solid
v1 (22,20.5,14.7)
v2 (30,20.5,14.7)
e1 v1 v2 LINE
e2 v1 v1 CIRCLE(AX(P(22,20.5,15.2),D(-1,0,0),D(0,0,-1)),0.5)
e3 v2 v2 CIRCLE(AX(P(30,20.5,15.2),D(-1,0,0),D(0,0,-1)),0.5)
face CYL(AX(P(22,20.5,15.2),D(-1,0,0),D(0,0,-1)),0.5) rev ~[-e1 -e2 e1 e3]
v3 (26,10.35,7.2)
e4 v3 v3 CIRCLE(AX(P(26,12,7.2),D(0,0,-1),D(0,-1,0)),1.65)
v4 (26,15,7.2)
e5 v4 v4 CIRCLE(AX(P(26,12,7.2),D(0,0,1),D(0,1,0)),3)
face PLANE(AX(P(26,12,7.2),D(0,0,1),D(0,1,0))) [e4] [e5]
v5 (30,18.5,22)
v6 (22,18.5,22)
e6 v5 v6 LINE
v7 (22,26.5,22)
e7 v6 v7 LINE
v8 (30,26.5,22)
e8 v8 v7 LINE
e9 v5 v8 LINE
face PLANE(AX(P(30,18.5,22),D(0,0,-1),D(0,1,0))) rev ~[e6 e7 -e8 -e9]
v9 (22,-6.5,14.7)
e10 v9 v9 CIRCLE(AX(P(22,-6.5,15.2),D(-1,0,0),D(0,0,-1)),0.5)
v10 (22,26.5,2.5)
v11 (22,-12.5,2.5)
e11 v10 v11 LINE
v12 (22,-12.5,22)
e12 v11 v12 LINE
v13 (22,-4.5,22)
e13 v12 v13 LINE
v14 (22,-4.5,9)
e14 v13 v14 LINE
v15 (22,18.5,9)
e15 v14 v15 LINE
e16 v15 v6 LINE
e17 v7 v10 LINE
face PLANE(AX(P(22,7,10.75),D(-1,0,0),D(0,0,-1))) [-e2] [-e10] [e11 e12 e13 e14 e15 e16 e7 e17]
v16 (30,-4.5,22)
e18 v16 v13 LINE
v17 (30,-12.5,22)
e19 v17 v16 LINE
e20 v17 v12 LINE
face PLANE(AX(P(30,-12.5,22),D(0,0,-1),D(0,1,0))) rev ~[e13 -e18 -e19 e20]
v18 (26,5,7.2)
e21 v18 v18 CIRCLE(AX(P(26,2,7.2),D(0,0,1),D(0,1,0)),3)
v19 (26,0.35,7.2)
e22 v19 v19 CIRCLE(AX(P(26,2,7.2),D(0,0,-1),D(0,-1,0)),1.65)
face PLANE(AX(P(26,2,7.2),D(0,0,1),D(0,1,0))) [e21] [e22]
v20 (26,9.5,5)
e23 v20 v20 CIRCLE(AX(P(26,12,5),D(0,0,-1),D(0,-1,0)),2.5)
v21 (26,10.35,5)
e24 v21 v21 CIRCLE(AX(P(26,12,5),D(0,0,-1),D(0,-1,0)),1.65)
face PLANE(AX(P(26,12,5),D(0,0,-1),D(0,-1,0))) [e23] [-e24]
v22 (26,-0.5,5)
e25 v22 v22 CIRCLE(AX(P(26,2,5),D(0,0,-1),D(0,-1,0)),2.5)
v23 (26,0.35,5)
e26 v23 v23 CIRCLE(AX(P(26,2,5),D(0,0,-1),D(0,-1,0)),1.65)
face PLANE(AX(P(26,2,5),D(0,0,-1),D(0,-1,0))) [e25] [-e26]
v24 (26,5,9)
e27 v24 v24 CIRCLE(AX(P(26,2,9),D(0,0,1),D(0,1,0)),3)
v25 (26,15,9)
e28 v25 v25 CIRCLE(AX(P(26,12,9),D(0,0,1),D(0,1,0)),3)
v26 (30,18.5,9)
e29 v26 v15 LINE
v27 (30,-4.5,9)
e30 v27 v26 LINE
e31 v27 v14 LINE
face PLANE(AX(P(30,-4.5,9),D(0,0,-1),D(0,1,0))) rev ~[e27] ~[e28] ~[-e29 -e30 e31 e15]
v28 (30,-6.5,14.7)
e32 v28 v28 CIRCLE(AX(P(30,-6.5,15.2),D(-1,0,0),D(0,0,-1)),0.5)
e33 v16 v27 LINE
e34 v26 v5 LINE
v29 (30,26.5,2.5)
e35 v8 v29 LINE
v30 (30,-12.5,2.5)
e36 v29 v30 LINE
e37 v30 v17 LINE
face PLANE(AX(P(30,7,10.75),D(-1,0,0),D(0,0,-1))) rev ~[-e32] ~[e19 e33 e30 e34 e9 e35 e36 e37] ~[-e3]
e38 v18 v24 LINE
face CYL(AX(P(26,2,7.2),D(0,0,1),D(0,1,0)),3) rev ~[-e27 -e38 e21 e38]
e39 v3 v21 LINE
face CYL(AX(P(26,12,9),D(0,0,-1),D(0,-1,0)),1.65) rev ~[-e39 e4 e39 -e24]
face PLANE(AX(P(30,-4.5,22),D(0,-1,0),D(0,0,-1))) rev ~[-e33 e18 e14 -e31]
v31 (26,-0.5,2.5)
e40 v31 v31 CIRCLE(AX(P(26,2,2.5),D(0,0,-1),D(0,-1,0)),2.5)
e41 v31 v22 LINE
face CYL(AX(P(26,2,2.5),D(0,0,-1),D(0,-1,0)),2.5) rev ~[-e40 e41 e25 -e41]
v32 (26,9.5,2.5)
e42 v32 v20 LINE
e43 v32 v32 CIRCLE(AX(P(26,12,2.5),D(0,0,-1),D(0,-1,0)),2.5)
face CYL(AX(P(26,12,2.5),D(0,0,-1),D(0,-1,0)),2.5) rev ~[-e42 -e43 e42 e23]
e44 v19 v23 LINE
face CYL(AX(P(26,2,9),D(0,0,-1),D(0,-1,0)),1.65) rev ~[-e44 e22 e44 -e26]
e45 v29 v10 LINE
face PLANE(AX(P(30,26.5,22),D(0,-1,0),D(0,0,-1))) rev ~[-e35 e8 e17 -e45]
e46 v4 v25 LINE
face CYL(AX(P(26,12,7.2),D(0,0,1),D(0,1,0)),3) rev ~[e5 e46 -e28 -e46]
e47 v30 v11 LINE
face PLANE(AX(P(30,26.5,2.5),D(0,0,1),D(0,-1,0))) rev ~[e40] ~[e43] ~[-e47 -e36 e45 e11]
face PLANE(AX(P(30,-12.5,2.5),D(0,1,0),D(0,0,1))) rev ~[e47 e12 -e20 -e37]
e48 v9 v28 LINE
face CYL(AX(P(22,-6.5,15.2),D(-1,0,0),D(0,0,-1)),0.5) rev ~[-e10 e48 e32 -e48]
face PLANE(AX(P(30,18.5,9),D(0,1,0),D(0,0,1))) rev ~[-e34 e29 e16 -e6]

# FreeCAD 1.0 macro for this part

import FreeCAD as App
import Part
import Sketcher

V = App.Vector


def add_polygon(sketch, points):
    """Adds a closed chain of lines whose ends are joined by coincident constraints."""
    first, n = sketch.GeometryCount, len(points)
    for a, b in zip(points, points[1:] + points[:1]):
        sketch.addGeometry(Part.LineSegment(App.Vector(*a, 0), App.Vector(*b, 0)), False)
    for i in range(n):
        sketch.addConstraint(Sketcher.Constraint("Coincident", first + i, 2, first + (i + 1) % n, 1))

doc = App.newDocument("Part")
body = doc.addObject("PartDesign::Body", "Body")

# Sketch on XY plane
sketch1 = body.newObject("Sketcher::SketchObject", "Sketch")
sketch1.AttachmentSupport = (doc.getObject("XY_Plane"), [""])
sketch1.MapMode = "FlatFace"
add_polygon(sketch1, [(0, 20), (0, 12), (13, 12), (13, -12), (0, -12), (0, -20), (20, -20), (20, 20)])  # lines 0-7
sketch1.addConstraint(Sketcher.Constraint("Vertical", 0))
sketch1.addConstraint(Sketcher.Constraint("Horizontal", 1))
sketch1.addConstraint(Sketcher.Constraint("Vertical", 2))
sketch1.addConstraint(Sketcher.Constraint("Horizontal", 3))
sketch1.addConstraint(Sketcher.Constraint("Vertical", 4))
sketch1.addConstraint(Sketcher.Constraint("Horizontal", 5))
sketch1.addConstraint(Sketcher.Constraint("Vertical", 6))
sketch1.addConstraint(Sketcher.Constraint("Horizontal", 7))
sketch1.addConstraint(Sketcher.Constraint("Symmetric", 0, 2, 3, 2, -1, 1))
sketch1.addConstraint(Sketcher.Constraint("Symmetric", 4, 2, 7, 2, -1))
sketch1.addConstraint(Sketcher.Constraint("DistanceX", 1, 1, 1, 2, 13.0))
sketch1.addConstraint(Sketcher.Constraint("DistanceY", 0, 2, 0, 1, 8.0))
sketch1.addConstraint(Sketcher.Constraint("DistanceY", 2, 2, 2, 1, 23.0))
sketch1.addConstraint(Sketcher.Constraint("DistanceX", 5, 1, 5, 2, 19.5))
pad1 = body.newObject("PartDesign::Pad", "Pad")
pad1.Profile = sketch1
pad1.Length = 8

# Sketch on YZ plane
sketch2 = body.newObject("Sketcher::SketchObject", "Sketch001")
sketch2.AttachmentSupport = (doc.getObject("YZ_Plane"), [""])
sketch2.MapMode = "FlatFace"
sketch2.AttachmentOffset = App.Placement(V(0, 0, 13), App.Rotation())
sketch2.addGeometry(Part.Circle(V(5, 4, 0), V(0, 0, 1), 1.6), False)
sketch2.addGeometry(Part.Circle(V(-5, 4, 0), V(0, 0, 1), 1.6), False)
sketch2.addConstraint(Sketcher.Constraint("Equal", 0, 1))
sketch2.addConstraint(Sketcher.Constraint("Symmetric", 0, 3, 1, 3, -2))
sketch2.addConstraint(Sketcher.Constraint("Diameter", 0, 3.3))
sketch2.addConstraint(Sketcher.Constraint("DistanceX", -1, 1, 0, 3, 5.0))
sketch2.addConstraint(Sketcher.Constraint("DistanceY", -1, 1, 0, 3, 4.0))
doc.recompute()
hole = body.newObject("PartDesign::Hole", "Hole")
hole.Profile = sketch2
hole.ThreadType = "None"
hole.Diameter = 3.3
hole.DepthType = "Dimension"
hole.Depth = 25
hole.DrillPoint = "Flat"
hole.HoleCutType = "Counterbore"
hole.HoleCutDiameter = 6
hole.HoleCutDepth = 1.8
hole.Reversed = True

# Sketch on XY plane
sketch3 = body.newObject("Sketcher::SketchObject", "Sketch002")
sketch3.AttachmentSupport = (doc.getObject("XY_Plane"), [""])
sketch3.MapMode = "FlatFace"
sketch3.AttachmentOffset = App.Placement(V(0, 0, 8), App.Rotation())
sketch3.addGeometry(Part.Circle(V(6.8, 13.5, 0), V(0, 0, 1), 0.5), False)
sketch3.addGeometry(Part.Circle(V(6.8, -13.5, 0), V(0, 0, 1), 0.5), False)
sketch3.addConstraint(Sketcher.Constraint("Equal", 0, 1))
sketch3.addConstraint(Sketcher.Constraint("Symmetric", 0, 3, 1, 3, -1))
sketch3.addConstraint(Sketcher.Constraint("Diameter", 0, 1.0))
sketch3.addConstraint(Sketcher.Constraint("DistanceY", 1, 3, 0, 3, 27.0))
sketch3.addConstraint(Sketcher.Constraint("DistanceX", -1, 1, 0, 3, 6.8))
pocket1 = body.newObject("PartDesign::Pocket", "Pocket")
pocket1.Profile = sketch3
pocket1.Type = "ThroughAll"

# Sketch on YZ plane
sketch4 = body.newObject("Sketcher::SketchObject", "Sketch003")
sketch4.AttachmentSupport = (doc.getObject("YZ_Plane"), [""])
sketch4.MapMode = "FlatFace"
sketch4.AttachmentOffset = App.Placement(V(0, 0, 19.5), App.Rotation())
sketch4.addGeometry(Part.Circle(V(-5, 4, 0), V(0, 0, 1), 2.5), False)
sketch4.addGeometry(Part.Circle(V(5, 4, 0), V(0, 0, 1), 2.5), False)
sketch4.addConstraint(Sketcher.Constraint("Equal", 0, 1))
sketch4.addConstraint(Sketcher.Constraint("Symmetric", 0, 3, 1, 3, -2))
sketch4.addConstraint(Sketcher.Constraint("Diameter", 0, 5.0))
sketch4.addConstraint(Sketcher.Constraint("DistanceX", 0, 3, -1, 1, 5.0))
sketch4.addConstraint(Sketcher.Constraint("DistanceY", -1, 1, 0, 3, 4.0))
pocket2 = body.newObject("PartDesign::Pocket", "Pocket001")
pocket2.Profile = sketch4
pocket2.Length = 2.5
body2 = doc.addObject("PartDesign::Body", "Body001")
doc.recompute()

body.Placement = App.Placement(V(0, 0, 0), App.Rotation(V(0, 1, 0), 90))
boolean = body2.newObject("PartDesign::Boolean", "Boolean")
boolean.Type = "Fuse"
boolean.addObjects([body])
body3 = doc.addObject("PartDesign::Body", "Body002")
doc.recompute()

body2.Placement = App.Placement(V(30, 7, 22), App.Rotation(V(0, 0, 1), 180))
boolean2 = body3.newObject("PartDesign::Boolean", "Boolean001")
boolean2.Type = "Fuse"
boolean2.addObjects([body2])

doc.recompute()
